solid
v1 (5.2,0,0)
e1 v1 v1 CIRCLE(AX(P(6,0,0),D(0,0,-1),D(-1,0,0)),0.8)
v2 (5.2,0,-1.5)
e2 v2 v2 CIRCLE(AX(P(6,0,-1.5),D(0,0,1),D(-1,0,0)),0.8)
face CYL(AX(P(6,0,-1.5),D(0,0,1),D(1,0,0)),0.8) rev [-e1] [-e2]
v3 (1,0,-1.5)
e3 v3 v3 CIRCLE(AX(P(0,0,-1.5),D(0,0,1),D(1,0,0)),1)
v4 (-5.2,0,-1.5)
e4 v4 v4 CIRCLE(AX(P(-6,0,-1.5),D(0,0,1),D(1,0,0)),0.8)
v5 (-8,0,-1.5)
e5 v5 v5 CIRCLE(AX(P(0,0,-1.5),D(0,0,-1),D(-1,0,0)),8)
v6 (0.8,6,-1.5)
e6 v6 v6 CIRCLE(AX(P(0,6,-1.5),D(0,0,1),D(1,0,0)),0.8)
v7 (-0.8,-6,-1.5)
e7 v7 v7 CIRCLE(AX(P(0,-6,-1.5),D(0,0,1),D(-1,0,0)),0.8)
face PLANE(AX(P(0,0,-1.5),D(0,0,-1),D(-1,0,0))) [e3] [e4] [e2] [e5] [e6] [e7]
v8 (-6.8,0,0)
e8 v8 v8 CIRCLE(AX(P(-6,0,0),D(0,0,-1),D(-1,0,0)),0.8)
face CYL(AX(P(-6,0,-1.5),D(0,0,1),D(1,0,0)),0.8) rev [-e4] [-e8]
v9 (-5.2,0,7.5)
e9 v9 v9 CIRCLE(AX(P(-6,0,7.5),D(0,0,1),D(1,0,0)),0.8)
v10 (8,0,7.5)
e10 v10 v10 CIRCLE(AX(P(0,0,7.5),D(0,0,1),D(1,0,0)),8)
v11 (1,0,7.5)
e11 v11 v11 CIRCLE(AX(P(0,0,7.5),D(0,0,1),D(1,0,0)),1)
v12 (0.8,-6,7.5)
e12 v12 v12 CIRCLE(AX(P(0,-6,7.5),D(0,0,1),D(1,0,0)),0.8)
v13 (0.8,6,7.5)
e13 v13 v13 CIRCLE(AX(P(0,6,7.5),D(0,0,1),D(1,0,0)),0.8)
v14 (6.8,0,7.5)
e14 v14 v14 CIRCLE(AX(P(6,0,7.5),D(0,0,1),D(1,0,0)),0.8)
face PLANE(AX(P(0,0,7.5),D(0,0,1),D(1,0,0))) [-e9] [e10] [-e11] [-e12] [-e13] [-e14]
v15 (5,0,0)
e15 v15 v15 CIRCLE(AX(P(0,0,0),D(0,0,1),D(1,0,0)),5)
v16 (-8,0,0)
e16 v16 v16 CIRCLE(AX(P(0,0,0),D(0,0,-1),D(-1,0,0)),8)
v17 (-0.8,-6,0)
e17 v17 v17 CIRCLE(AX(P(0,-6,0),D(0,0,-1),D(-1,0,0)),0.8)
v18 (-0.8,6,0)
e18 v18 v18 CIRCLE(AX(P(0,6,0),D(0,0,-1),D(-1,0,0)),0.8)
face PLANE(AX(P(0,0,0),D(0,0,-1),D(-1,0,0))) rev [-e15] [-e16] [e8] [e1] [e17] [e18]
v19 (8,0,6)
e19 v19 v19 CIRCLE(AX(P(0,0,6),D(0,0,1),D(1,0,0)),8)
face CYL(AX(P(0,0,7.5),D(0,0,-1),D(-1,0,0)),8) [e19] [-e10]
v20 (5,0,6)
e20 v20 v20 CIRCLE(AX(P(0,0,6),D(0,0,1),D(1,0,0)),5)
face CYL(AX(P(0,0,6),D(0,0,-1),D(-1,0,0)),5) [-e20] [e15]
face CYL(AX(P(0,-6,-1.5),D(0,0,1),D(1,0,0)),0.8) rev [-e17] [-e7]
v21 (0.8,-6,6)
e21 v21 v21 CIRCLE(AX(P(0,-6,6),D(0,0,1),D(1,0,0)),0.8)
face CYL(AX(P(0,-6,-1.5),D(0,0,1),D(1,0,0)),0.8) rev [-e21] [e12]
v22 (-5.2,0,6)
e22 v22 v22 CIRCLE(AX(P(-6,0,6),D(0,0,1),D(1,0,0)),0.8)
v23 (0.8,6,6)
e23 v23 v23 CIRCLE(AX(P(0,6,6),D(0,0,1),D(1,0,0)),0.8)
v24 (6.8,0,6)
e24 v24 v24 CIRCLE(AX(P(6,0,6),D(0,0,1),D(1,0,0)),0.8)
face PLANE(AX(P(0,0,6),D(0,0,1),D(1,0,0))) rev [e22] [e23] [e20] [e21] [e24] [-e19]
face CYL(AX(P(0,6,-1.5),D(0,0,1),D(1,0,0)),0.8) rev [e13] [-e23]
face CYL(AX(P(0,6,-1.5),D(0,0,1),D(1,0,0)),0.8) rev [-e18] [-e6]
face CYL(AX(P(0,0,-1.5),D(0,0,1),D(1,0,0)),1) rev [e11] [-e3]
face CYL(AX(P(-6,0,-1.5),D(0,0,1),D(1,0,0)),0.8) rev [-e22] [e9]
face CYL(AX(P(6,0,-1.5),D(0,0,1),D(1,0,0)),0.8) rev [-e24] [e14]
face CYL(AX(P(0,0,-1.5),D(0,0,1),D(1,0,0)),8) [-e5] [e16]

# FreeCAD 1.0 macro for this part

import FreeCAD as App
import Part
import Sketcher
Q = App.Units.Quantity

doc = App.newDocument("Part")
body = doc.addObject("PartDesign::Body", "Body")

# Sketch on XY plane
sketch1 = body.newObject("Sketcher::SketchObject", "Sketch")
sketch1.AttachmentSupport = (doc.getObject("XY_Plane"), [""])
sketch1.MapMode = "FlatFace"
sketch1.addGeometry(Part.Circle(App.Vector(0, 0, 0), App.Vector(0, 0, 1), 5), False)
sketch1.addConstraint(Sketcher.Constraint("Coincident", 0, 3, -1, 1))
sketch1.addConstraint(Sketcher.Constraint("Diameter", 0, Q("10 mm")))
pad1 = body.newObject("PartDesign::Pad", "Pad")
pad1.Profile = sketch1
pad1.Length = 6

# Sketch on XY plane
sketch2 = body.newObject("Sketcher::SketchObject", "Sketch001")
sketch2.AttachmentSupport = (doc.getObject("XY_Plane"), [""])
sketch2.MapMode = "FlatFace"
sketch2.AttachmentOffset = App.Placement(App.Vector(0, 0, 6), App.Rotation())
sketch2.addGeometry(Part.Circle(App.Vector(0, 0, 0), App.Vector(0, 0, 1), 8), False)
sketch2.addConstraint(Sketcher.Constraint("Coincident", 0, 3, -1, 1))
sketch2.addConstraint(Sketcher.Constraint("Diameter", 0, Q("16 mm")))
pad2 = body.newObject("PartDesign::Pad", "Pad001")
pad2.Profile = sketch2
pad2.Length = 1.5

# Sketch on XY plane
sketch3 = body.newObject("Sketcher::SketchObject", "Sketch002")
sketch3.AttachmentSupport = (doc.getObject("XY_Plane"), [""])
sketch3.MapMode = "FlatFace"
sketch3.AttachmentOffset = App.Placement(App.Vector(0, 0, -1.5), App.Rotation())
sketch3.addGeometry(Part.Circle(App.Vector(0, 0, 0), App.Vector(0, 0, 1), 8), False)
sketch3.addConstraint(Sketcher.Constraint("Coincident", 0, 3, -1, 1))
sketch3.addConstraint(Sketcher.Constraint("Diameter", 0, Q("16 mm")))
pad3 = body.newObject("PartDesign::Pad", "Pad002")
pad3.Profile = sketch3
pad3.Length = 1.5

# Sketch on XY plane
sketch4 = body.newObject("Sketcher::SketchObject", "Sketch003")
sketch4.AttachmentSupport = (doc.getObject("XY_Plane"), [""])
sketch4.MapMode = "FlatFace"
sketch4.AttachmentOffset = App.Placement(App.Vector(0, 0, 7.5), App.Rotation())
sketch4.addGeometry(Part.Circle(App.Vector(-6, 0, 0), App.Vector(0, 0, 1), 0.8), False)
sketch4.addGeometry(Part.Circle(App.Vector(6, 0, 0), App.Vector(0, 0, 1), 0.8), False)
sketch4.addGeometry(Part.Circle(App.Vector(0, 6, 0), App.Vector(0, 0, 1), 0.8), False)
sketch4.addGeometry(Part.Circle(App.Vector(0, -6, 0), App.Vector(0, 0, 1), 0.8), False)
sketch4.addConstraint(Sketcher.Constraint("Equal", 0, 1))
sketch4.addConstraint(Sketcher.Constraint("Equal", 1, 2))
sketch4.addConstraint(Sketcher.Constraint("Equal", 2, 3))
sketch4.addConstraint(Sketcher.Constraint("Symmetric", 0, 3, 1, 3, -1, 1))
sketch4.addConstraint(Sketcher.Constraint("Symmetric", 2, 3, 3, 3, -1, 1))
sketch4.addConstraint(Sketcher.Constraint("PointOnObject", 0, 3, -1))
sketch4.addConstraint(Sketcher.Constraint("PointOnObject", 2, 3, -2))
sketch4.addConstraint(Sketcher.Constraint("Diameter", 0, Q("1.6 mm")))
sketch4.addConstraint(Sketcher.Constraint("DistanceX", 0, 3, -1, 1, Q("6 mm")))
sketch4.addConstraint(Sketcher.Constraint("DistanceY", -1, 1, 2, 3, Q("6 mm")))
pocket1 = body.newObject("PartDesign::Pocket", "Pocket")
pocket1.Profile = sketch4
pocket1.Type = "ThroughAll"
pocket1.Midplane = True

# Sketch on XY plane
sketch5 = body.newObject("Sketcher::SketchObject", "Sketch004")
sketch5.AttachmentSupport = (doc.getObject("XY_Plane"), [""])
sketch5.MapMode = "FlatFace"
sketch5.AttachmentOffset = App.Placement(App.Vector(0, 0, 7.5), App.Rotation())
sketch5.addGeometry(Part.Circle(App.Vector(0, 0, 0), App.Vector(0, 0, 1), 1), False)
sketch5.addConstraint(Sketcher.Constraint("Coincident", 0, 3, -1, 1))
sketch5.addConstraint(Sketcher.Constraint("Diameter", 0, Q("2 mm")))
pocket2 = body.newObject("PartDesign::Pocket", "Pocket001")
pocket2.Profile = sketch5
pocket2.Type = "ThroughAll"
pocket2.Midplane = True

doc.recompute()
